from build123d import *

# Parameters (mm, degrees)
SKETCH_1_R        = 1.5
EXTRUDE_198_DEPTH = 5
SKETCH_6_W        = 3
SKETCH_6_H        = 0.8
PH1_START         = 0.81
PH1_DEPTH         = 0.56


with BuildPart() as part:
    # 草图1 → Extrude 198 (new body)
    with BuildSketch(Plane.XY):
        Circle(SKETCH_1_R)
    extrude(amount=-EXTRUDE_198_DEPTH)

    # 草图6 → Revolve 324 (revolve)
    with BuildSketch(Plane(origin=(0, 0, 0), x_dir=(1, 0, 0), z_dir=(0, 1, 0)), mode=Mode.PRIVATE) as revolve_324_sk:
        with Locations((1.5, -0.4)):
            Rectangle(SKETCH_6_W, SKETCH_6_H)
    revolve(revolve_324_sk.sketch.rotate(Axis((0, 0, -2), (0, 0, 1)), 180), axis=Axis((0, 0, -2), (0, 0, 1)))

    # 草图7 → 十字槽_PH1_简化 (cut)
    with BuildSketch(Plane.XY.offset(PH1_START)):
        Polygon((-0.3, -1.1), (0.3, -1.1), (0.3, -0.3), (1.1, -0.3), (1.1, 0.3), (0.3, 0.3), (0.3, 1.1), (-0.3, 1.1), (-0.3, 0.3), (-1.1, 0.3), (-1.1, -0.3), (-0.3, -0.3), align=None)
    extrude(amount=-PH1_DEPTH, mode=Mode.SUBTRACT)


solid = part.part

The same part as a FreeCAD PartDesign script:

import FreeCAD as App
import Part
import Sketcher
Q = App.Units.Quantity

doc = App.newDocument("Part")
body = doc.addObject("PartDesign::Body", "Body")

# Sketch on XY plane
sketch1 = body.newObject("Sketcher::SketchObject", "Sketch")
sketch1.AttachmentSupport = (doc.getObject("XY_Plane"), [""])
sketch1.MapMode = "FlatFace"
sketch1.addGeometry(Part.Circle(App.Vector(0, 0, 0), App.Vector(0, 0, 1), 1.5), False)
sketch1.addConstraint([
    Sketcher.Constraint("Coincident", 0, 3, -1, 1),
    Sketcher.Constraint("Diameter", 0, Q("3 mm")),
])
pad1 = body.newObject("PartDesign::Pad", "Pad")
pad1.Profile = sketch1
pad1.Length = 5
pad1.Reversed = True

# Sketch on XZ plane
sketch2 = body.newObject("Sketcher::SketchObject", "Sketch001")
sketch2.AttachmentSupport = (doc.getObject("XZ_Plane"), [""])
sketch2.MapMode = "FlatFace"
sketch2.addGeometry([
    Part.LineSegment(App.Vector(0, 0, 0), App.Vector(0, 0.8, 0)),
    Part.LineSegment(App.Vector(0, 0.8, 0), App.Vector(3, 0.8, 0)),
    Part.LineSegment(App.Vector(3, 0.8, 0), App.Vector(3, 0, 0)),
    Part.LineSegment(App.Vector(3, 0, 0), App.Vector(0, 0, 0)),
], False)
sketch2.addConstraint([
    Sketcher.Constraint("Coincident", 0, 2, 1, 1),
    Sketcher.Constraint("Coincident", 1, 2, 2, 1),
    Sketcher.Constraint("Coincident", 2, 2, 3, 1),
    Sketcher.Constraint("Coincident", 3, 2, 0, 1),
    Sketcher.Constraint("Vertical", 0),
    Sketcher.Constraint("Horizontal", 1),
    Sketcher.Constraint("Vertical", 2),
    Sketcher.Constraint("Horizontal", 3),
    Sketcher.Constraint("Coincident", 3, 2, -1, 1),
    Sketcher.Constraint("DistanceX", 1, 1, 1, 2, Q("3 mm")),
    Sketcher.Constraint("DistanceY", 0, 1, 0, 2, Q("0.8 mm")),
])
revolution = body.newObject("PartDesign::Revolution", "Revolution")
revolution.Profile = sketch2
revolution.ReferenceAxis = (sketch2, ["V_Axis"])
revolution.Angle = 360

# Sketch on XY plane
sketch3 = body.newObject("Sketcher::SketchObject", "Sketch002")
sketch3.AttachmentSupport = (doc.getObject("XY_Plane"), [""])
sketch3.MapMode = "FlatFace"
sketch3.AttachmentOffset = App.Placement(App.Vector(0, 0, 0.81), App.Rotation())
sketch3.addGeometry([
    Part.LineSegment(App.Vector(-0.3, -1.1, 0), App.Vector(0.3, -1.1, 0)),  # 0
    Part.LineSegment(App.Vector(0.3, -1.1, 0), App.Vector(0.3, -0.3, 0)),  # 1
    Part.LineSegment(App.Vector(0.3, -0.3, 0), App.Vector(1.1, -0.3, 0)),  # 2
    Part.LineSegment(App.Vector(1.1, -0.3, 0), App.Vector(1.1, 0.3, 0)),  # 3
    Part.LineSegment(App.Vector(1.1, 0.3, 0), App.Vector(0.3, 0.3, 0)),  # 4
    Part.LineSegment(App.Vector(0.3, 0.3, 0), App.Vector(0.3, 1.1, 0)),  # 5
    Part.LineSegment(App.Vector(0.3, 1.1, 0), App.Vector(-0.3, 1.1, 0)),  # 6
    Part.LineSegment(App.Vector(-0.3, 1.1, 0), App.Vector(-0.3, 0.3, 0)),  # 7
    Part.LineSegment(App.Vector(-0.3, 0.3, 0), App.Vector(-1.1, 0.3, 0)),  # 8
    Part.LineSegment(App.Vector(-1.1, 0.3, 0), App.Vector(-1.1, -0.3, 0)),  # 9
    Part.LineSegment(App.Vector(-1.1, -0.3, 0), App.Vector(-0.3, -0.3, 0)),  # 10
    Part.LineSegment(App.Vector(-0.3, -0.3, 0), App.Vector(-0.3, -1.1, 0)),  # 11
], False)
sketch3.addConstraint([
    Sketcher.Constraint("Coincident", 0, 2, 1, 1),
    Sketcher.Constraint("Coincident", 1, 2, 2, 1),
    Sketcher.Constraint("Coincident", 2, 2, 3, 1),
    Sketcher.Constraint("Coincident", 3, 2, 4, 1),
    Sketcher.Constraint("Coincident", 4, 2, 5, 1),
    Sketcher.Constraint("Coincident", 5, 2, 6, 1),
    Sketcher.Constraint("Coincident", 6, 2, 7, 1),
    Sketcher.Constraint("Coincident", 7, 2, 8, 1),
    Sketcher.Constraint("Coincident", 8, 2, 9, 1),
    Sketcher.Constraint("Coincident", 9, 2, 10, 1),
    Sketcher.Constraint("Coincident", 10, 2, 11, 1),
    Sketcher.Constraint("Coincident", 11, 2, 0, 1),
    Sketcher.Constraint("Horizontal", 0),
    Sketcher.Constraint("Vertical", 1),
    Sketcher.Constraint("Horizontal", 2),
    Sketcher.Constraint("Vertical", 3),
    Sketcher.Constraint("Horizontal", 4),
    Sketcher.Constraint("Vertical", 5),
    Sketcher.Constraint("Horizontal", 6),
    Sketcher.Constraint("Vertical", 7),
    Sketcher.Constraint("Horizontal", 8),
    Sketcher.Constraint("Vertical", 9),
    Sketcher.Constraint("Horizontal", 10),
    Sketcher.Constraint("Vertical", 11),
    Sketcher.Constraint("Symmetric", 0, 2, 6, 2, -1, 1),
    Sketcher.Constraint("Symmetric", 2, 2, 8, 2, -1, 1),
    Sketcher.Constraint("Symmetric", 4, 2, 10, 2, -1, 1),
    Sketcher.Constraint("Symmetric", 4, 2, 7, 2, -2),
    Sketcher.Constraint("Equal", 10, 1),
    Sketcher.Constraint("Equal", 6, 3),
    Sketcher.Constraint("DistanceX", 0, 1, 0, 2, Q("0.6 mm")),
    Sketcher.Constraint("DistanceX", 2, 1, 2, 2, Q("0.8 mm")),
])
pocket1 = body.newObject("PartDesign::Pocket", "Pocket")
pocket1.Profile = sketch3
pocket1.Length = 0.56

doc.recompute()
